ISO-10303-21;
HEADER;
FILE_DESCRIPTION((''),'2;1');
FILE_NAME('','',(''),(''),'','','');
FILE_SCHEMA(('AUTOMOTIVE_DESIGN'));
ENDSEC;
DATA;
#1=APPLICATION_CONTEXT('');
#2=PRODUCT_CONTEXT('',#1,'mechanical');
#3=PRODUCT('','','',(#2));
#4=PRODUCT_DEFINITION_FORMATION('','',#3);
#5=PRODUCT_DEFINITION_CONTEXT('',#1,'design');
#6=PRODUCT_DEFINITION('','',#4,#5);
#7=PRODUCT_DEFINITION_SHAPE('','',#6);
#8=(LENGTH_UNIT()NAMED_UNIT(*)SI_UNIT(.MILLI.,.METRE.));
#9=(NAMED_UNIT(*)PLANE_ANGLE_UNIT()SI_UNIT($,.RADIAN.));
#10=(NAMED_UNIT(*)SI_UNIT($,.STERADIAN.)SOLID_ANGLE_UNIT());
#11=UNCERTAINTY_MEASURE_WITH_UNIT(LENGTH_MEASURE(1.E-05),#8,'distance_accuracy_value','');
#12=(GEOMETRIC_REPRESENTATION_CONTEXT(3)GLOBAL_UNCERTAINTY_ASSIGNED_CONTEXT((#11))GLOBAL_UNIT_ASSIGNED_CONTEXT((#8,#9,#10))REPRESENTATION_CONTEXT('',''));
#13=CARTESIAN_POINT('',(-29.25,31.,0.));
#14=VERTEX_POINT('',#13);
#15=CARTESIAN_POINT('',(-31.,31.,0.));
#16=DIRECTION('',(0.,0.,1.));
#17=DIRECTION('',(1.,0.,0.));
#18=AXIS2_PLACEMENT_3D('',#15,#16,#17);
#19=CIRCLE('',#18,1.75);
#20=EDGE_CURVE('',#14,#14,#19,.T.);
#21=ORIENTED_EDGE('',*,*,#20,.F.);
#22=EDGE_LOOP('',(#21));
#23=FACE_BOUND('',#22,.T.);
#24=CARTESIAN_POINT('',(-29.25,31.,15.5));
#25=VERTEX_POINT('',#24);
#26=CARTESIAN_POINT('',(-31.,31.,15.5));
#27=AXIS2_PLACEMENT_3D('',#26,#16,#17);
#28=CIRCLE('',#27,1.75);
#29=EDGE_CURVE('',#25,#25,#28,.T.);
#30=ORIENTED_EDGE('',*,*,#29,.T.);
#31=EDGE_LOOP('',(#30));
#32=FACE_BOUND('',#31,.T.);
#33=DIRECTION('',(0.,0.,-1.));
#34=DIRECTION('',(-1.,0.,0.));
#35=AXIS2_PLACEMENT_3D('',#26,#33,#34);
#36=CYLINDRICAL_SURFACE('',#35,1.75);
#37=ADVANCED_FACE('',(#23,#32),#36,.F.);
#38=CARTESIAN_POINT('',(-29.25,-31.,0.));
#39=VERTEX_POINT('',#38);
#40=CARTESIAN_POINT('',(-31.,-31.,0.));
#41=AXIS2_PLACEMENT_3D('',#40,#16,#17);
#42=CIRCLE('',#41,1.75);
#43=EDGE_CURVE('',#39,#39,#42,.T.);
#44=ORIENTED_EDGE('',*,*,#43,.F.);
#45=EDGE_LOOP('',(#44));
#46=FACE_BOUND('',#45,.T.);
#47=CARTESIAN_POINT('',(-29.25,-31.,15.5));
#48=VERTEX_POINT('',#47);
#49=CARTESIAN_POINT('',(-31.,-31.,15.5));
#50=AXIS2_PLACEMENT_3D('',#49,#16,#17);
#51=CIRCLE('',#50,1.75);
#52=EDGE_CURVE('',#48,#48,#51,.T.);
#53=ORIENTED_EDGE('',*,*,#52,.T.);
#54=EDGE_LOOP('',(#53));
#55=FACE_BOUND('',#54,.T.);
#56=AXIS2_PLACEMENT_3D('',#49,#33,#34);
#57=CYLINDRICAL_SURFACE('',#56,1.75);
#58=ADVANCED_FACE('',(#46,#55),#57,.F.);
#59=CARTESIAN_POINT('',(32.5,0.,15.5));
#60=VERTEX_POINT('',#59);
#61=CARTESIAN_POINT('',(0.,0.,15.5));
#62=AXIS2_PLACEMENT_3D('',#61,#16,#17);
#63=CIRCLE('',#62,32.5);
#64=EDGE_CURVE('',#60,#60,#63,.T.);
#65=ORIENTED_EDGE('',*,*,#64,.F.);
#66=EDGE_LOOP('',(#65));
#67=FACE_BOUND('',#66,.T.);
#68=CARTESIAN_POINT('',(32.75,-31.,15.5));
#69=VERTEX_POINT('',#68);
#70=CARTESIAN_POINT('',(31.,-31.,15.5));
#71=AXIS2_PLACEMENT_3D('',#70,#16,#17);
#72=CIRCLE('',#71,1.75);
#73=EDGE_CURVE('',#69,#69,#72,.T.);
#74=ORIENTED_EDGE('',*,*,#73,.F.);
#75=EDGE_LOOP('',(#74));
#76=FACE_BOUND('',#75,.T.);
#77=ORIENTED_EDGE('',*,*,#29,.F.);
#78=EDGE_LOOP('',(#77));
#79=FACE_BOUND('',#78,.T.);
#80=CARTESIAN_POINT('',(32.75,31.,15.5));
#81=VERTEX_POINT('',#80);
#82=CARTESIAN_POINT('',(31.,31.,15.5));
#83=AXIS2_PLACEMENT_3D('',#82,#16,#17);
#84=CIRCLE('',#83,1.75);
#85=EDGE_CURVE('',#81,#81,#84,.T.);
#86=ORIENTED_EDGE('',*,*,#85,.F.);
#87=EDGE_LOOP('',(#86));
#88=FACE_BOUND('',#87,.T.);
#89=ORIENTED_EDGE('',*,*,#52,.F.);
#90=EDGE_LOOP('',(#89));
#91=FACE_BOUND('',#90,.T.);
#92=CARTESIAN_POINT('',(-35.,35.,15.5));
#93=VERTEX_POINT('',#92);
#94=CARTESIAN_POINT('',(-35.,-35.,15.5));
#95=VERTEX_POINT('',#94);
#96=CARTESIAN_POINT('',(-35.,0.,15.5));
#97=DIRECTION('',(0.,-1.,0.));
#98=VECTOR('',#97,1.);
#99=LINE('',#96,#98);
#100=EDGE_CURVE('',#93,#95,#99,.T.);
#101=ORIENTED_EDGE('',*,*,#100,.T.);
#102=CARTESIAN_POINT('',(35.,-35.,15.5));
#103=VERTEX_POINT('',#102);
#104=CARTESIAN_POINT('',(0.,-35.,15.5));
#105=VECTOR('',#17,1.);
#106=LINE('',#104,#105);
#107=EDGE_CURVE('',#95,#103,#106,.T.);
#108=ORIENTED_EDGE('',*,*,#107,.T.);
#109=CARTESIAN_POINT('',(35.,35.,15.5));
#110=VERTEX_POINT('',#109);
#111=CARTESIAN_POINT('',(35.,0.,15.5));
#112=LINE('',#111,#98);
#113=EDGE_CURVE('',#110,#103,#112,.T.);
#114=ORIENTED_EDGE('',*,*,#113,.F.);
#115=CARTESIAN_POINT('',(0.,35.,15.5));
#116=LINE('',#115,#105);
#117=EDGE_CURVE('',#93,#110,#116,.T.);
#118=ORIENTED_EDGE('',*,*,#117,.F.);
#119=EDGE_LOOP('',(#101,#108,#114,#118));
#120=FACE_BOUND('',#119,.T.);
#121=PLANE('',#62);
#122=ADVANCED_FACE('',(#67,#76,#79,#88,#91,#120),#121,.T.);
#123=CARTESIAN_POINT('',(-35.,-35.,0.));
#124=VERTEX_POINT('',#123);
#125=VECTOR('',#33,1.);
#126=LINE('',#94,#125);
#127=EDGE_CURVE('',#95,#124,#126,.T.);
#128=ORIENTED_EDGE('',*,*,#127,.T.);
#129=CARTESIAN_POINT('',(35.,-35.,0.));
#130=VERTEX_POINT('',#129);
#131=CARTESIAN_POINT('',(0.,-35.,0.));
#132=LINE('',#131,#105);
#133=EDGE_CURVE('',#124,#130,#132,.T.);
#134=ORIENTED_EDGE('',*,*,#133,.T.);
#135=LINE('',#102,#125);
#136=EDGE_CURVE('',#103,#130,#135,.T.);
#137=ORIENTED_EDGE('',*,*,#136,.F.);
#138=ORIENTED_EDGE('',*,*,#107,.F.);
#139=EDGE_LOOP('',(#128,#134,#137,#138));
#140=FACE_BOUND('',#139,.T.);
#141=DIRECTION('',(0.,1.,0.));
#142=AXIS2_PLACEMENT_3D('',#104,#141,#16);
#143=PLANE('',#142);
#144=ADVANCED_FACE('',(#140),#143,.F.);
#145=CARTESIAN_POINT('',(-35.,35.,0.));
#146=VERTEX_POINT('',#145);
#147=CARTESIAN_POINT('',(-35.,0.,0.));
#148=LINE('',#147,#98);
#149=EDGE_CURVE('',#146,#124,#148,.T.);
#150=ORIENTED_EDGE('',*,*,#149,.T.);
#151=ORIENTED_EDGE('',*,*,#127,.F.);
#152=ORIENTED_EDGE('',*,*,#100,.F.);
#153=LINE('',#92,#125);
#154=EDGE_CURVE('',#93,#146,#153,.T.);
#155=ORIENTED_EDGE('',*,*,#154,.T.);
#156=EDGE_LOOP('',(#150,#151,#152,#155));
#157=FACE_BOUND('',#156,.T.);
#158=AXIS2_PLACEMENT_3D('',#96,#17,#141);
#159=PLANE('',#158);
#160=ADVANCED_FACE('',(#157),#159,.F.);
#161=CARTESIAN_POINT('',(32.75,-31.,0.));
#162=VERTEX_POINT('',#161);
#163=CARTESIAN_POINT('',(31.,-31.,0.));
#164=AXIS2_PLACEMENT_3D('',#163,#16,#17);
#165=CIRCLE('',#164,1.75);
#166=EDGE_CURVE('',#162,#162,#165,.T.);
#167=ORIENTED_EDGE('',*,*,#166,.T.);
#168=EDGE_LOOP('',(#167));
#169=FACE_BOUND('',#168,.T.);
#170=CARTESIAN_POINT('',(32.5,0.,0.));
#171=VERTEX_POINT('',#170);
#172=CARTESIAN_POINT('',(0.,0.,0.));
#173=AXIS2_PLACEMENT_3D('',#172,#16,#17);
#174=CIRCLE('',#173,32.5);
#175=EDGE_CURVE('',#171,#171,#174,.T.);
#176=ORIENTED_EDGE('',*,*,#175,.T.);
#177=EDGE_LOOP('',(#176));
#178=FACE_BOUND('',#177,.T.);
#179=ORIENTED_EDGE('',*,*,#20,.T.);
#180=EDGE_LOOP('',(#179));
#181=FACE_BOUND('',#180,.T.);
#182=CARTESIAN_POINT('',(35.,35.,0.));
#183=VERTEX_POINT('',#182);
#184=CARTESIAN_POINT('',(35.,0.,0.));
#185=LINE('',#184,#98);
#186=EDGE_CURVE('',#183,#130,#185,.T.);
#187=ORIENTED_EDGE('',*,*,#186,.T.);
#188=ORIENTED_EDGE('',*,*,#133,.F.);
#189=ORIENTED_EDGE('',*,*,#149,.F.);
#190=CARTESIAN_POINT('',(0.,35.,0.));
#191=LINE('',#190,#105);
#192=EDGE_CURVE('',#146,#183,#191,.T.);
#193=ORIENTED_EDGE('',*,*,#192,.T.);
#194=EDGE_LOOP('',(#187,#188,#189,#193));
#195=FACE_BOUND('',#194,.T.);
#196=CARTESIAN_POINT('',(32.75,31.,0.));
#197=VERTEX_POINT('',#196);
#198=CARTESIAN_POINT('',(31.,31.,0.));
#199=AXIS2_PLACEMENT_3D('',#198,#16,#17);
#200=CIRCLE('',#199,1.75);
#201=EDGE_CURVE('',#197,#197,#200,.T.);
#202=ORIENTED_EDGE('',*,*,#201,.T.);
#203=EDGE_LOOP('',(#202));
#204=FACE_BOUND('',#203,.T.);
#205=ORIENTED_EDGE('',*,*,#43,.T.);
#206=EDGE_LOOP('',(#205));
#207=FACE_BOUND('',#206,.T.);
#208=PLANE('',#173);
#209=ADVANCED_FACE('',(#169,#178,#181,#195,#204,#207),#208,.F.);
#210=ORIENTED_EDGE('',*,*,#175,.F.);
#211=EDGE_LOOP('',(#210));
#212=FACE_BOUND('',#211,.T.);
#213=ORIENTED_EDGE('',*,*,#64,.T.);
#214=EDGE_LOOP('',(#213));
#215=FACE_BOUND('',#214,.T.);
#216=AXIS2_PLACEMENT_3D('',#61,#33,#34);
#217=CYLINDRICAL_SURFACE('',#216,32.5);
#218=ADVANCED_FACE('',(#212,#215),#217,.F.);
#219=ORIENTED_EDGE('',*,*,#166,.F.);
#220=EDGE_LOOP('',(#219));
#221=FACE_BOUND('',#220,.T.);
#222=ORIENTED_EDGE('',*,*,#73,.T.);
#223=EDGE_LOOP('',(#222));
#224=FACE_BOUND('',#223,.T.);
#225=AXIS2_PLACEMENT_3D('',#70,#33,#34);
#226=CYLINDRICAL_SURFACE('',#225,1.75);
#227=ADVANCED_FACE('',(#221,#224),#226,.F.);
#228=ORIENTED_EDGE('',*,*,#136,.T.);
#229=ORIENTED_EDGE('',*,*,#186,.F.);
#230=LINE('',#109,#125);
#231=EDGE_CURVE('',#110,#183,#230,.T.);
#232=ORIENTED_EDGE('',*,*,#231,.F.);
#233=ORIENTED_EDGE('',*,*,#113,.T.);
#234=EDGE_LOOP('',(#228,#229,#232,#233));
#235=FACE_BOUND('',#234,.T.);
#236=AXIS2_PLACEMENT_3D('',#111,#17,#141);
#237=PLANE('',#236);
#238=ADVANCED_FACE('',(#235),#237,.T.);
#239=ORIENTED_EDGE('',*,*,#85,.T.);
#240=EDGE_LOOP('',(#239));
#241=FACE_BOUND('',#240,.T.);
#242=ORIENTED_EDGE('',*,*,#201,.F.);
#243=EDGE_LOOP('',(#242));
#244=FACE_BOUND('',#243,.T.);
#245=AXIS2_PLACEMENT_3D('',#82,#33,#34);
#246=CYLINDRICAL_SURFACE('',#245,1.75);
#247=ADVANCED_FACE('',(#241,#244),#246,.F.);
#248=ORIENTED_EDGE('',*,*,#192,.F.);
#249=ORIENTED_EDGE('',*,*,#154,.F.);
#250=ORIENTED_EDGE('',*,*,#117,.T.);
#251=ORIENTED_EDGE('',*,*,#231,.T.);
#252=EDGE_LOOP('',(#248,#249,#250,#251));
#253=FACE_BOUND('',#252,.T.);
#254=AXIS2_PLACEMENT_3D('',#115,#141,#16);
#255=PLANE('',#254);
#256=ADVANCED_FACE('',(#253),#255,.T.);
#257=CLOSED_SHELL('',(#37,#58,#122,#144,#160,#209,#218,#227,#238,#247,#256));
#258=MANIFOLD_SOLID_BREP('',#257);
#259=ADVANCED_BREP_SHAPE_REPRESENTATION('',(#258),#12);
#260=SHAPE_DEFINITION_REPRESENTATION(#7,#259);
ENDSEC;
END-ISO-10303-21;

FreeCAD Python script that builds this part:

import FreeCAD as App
import Part
import Sketcher


def add_polygon(sketch, points):
    """Adds a closed chain of lines whose ends are joined by coincident constraints."""
    first, n = sketch.GeometryCount, len(points)
    for a, b in zip(points, points[1:] + points[:1]):
        sketch.addGeometry(Part.LineSegment(App.Vector(*a, 0), App.Vector(*b, 0)), False)
    for i in range(n):
        sketch.addConstraint(Sketcher.Constraint("Coincident", first + i, 2, first + (i + 1) % n, 1))

doc = App.newDocument("Part")
body = doc.addObject("PartDesign::Body", "Body")

# Sketch on XY plane
sketch1 = body.newObject("Sketcher::SketchObject", "Sketch")
sketch1.AttachmentSupport = (doc.getObject("XY_Plane"), [""])
sketch1.MapMode = "FlatFace"
add_polygon(sketch1, [(-35, 35), (-35, -35), (35, -35), (35, 35)])  # lines 0-3
sketch1.addGeometry(Part.Circle(App.Vector(-31, -31, 0), App.Vector(0, 0, 1), 1.8), False)  # 4
sketch1.addGeometry(Part.Circle(App.Vector(31, -31, 0), App.Vector(0, 0, 1), 1.8), False)  # 5
sketch1.addGeometry(Part.Circle(App.Vector(-31, 31, 0), App.Vector(0, 0, 1), 1.8), False)  # 6
sketch1.addGeometry(Part.Circle(App.Vector(0, 0, 0), App.Vector(0, 0, 1), 32.5), False)  # 7
sketch1.addGeometry(Part.Circle(App.Vector(31, 31, 0), App.Vector(0, 0, 1), 1.8), False)  # 8
sketch1.addConstraint([
    Sketcher.Constraint("Vertical", 0),
    Sketcher.Constraint("Horizontal", 1),
    Sketcher.Constraint("Vertical", 2),
    Sketcher.Constraint("Horizontal", 3),
    Sketcher.Constraint("Coincident", 7, 3, -1, 1),
    Sketcher.Constraint("Equal", 4, 5),
    Sketcher.Constraint("Equal", 5, 6),
    Sketcher.Constraint("Equal", 6, 8),
    Sketcher.Constraint("Symmetric", 5, 3, 6, 3, -1, 1),
    Sketcher.Constraint("Symmetric", 4, 3, 8, 3, -1, 1),
    Sketcher.Constraint("Symmetric", 0, 2, 2, 2, -1, 1),
    Sketcher.Constraint("Symmetric", 4, 3, 5, 3, -2),
    Sketcher.Constraint("Equal", 3, 0),
    Sketcher.Constraint("Diameter", 7, 65.0),
    Sketcher.Constraint("Diameter", 4, 3.5),
    Sketcher.Constraint("DistanceX", 1, 1, 1, 2, 70.0),
    Sketcher.Constraint("DistanceX", 4, 3, -1, 1, 31.0),
    Sketcher.Constraint("DistanceY", 4, 3, -1, 1, 31.0),
])
pad1 = body.newObject("PartDesign::Pad", "Pad")
pad1.Profile = sketch1
pad1.Length = 15.5

doc.recompute()
